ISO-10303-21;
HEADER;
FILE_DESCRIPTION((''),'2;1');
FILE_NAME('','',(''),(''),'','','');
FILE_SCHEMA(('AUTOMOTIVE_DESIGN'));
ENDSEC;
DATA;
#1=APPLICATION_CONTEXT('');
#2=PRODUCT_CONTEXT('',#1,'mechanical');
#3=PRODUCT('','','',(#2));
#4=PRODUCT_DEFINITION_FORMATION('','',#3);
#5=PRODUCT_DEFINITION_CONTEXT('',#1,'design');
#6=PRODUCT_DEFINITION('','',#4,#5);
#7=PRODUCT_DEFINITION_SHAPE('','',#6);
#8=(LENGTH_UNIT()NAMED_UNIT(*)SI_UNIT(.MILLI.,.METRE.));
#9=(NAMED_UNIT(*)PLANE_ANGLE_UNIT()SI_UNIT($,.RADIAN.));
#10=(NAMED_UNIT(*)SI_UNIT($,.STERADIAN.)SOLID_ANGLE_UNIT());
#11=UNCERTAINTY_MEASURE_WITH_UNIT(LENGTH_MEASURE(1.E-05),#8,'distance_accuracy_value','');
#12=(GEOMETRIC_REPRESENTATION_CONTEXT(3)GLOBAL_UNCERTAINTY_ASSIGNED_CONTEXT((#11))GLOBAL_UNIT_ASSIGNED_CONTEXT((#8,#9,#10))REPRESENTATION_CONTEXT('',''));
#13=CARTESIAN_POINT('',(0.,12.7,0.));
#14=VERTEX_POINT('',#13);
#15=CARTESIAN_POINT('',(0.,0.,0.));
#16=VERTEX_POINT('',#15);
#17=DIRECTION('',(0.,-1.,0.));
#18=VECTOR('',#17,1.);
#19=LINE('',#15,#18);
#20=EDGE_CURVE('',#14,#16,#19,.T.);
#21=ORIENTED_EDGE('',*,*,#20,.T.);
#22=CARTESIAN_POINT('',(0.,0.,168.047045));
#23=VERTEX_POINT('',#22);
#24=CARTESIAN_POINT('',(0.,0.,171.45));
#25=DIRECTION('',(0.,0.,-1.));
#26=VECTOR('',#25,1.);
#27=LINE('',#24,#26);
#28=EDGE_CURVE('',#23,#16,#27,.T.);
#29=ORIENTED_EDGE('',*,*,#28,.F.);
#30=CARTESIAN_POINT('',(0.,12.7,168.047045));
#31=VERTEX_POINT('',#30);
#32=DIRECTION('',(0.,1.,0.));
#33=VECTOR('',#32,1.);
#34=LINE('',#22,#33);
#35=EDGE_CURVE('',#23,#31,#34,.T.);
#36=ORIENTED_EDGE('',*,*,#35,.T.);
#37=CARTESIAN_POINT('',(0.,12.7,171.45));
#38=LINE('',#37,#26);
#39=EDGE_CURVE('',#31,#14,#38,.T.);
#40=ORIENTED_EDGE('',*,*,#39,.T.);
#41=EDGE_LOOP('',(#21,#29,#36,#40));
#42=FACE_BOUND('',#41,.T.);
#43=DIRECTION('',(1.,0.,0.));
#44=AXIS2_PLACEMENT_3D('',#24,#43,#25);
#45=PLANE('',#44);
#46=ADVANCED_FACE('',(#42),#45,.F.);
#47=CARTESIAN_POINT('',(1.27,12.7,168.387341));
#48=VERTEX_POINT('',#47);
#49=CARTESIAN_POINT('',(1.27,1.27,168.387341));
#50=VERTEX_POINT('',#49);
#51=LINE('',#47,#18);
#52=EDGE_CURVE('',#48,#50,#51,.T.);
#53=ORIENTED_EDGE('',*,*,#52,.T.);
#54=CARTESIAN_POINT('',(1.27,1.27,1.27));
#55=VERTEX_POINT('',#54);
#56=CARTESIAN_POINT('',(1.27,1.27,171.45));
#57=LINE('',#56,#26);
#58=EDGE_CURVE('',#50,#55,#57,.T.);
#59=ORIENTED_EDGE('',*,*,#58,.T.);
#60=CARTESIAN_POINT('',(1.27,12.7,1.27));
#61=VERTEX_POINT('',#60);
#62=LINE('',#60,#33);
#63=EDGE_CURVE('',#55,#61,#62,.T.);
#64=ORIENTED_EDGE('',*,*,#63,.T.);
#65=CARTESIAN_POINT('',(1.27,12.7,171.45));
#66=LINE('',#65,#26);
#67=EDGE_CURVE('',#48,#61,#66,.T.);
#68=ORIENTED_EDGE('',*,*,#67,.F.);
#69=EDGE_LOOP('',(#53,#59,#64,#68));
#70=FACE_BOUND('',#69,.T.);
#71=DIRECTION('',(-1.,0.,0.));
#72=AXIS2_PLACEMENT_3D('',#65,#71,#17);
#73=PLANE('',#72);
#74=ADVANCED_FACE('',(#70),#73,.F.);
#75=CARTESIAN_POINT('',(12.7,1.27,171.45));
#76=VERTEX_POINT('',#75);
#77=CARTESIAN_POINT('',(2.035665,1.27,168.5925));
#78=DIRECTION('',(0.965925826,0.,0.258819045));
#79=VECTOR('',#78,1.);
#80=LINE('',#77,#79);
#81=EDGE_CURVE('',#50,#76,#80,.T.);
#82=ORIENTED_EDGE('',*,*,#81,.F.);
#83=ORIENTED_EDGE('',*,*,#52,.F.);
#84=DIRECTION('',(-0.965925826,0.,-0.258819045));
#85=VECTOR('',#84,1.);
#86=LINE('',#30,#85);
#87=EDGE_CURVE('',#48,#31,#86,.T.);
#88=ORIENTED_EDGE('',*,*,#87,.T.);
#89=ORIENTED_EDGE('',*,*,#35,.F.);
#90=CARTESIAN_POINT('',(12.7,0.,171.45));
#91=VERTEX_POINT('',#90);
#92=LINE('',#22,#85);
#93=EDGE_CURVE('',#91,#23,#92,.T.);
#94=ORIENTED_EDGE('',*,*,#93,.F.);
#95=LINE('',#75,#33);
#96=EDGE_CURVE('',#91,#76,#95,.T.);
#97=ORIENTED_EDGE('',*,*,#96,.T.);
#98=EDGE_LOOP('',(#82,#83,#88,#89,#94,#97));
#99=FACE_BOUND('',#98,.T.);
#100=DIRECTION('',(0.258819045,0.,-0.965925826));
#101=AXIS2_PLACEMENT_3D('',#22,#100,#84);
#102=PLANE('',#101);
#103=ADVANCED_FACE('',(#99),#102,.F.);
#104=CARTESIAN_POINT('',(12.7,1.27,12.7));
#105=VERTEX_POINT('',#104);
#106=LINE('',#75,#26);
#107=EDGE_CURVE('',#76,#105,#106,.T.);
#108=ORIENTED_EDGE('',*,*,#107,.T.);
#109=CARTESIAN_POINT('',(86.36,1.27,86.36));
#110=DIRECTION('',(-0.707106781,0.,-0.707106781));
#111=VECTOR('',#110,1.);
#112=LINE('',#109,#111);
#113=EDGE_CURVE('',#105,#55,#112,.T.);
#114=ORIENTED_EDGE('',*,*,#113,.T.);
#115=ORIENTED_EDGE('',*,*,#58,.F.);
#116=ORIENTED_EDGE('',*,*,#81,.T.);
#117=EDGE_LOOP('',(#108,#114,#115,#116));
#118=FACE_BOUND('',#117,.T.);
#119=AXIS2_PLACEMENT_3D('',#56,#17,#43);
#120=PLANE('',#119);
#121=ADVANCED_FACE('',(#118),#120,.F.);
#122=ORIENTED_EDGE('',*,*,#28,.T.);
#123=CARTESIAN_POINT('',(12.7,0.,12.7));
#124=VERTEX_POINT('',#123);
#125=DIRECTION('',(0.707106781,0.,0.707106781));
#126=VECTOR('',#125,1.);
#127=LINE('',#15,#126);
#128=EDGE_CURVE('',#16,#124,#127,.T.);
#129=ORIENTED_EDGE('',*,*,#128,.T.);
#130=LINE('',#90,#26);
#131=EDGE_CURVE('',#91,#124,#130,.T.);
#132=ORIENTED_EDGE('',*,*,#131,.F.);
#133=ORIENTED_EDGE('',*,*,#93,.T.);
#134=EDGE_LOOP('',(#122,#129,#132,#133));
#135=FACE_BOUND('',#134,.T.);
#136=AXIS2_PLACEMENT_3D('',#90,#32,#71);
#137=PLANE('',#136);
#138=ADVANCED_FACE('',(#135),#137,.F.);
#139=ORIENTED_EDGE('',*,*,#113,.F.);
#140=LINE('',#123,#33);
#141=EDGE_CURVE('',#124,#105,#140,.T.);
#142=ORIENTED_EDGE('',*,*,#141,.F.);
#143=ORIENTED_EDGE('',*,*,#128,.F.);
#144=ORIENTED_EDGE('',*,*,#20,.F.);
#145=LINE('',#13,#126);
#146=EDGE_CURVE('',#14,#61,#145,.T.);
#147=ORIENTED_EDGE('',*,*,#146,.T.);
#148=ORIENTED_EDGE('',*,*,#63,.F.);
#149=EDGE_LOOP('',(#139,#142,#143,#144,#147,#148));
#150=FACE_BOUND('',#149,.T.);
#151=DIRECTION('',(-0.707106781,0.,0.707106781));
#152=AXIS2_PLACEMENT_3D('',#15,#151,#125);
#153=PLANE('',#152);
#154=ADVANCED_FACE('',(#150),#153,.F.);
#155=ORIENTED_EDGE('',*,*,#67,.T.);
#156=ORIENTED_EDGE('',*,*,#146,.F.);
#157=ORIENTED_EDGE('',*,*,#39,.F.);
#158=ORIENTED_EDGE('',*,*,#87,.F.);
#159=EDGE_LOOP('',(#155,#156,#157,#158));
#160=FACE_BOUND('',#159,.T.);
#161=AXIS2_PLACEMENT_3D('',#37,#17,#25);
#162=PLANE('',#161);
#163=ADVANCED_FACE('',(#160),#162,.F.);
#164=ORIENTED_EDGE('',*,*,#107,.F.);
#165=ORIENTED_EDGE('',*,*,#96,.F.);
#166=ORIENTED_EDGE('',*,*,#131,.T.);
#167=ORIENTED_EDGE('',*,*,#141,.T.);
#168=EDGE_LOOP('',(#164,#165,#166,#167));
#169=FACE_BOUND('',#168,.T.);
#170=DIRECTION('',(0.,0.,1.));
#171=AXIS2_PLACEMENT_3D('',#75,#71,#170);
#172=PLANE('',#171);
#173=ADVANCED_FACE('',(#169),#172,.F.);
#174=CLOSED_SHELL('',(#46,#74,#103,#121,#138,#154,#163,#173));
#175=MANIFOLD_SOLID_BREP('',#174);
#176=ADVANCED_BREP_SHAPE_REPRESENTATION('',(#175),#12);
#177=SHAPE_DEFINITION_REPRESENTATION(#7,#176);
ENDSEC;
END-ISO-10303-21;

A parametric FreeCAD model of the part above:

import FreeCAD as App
import Part
import Sketcher
Q = App.Units.Quantity

doc = App.newDocument("Part")
body = doc.addObject("PartDesign::Body", "Body")

# Sketch on XY plane
sketch1 = doc.addObject("Sketcher::SketchObject", "Sketch")
body.addObject(sketch1)
sketch1.AttachmentSupport = (doc.XY_Plane, [""])
sketch1.MapMode = "FlatFace"
sketch1.addGeometry(Part.LineSegment(App.Vector(0, 12.7, 0), App.Vector(0, 0, 0)), False)
sketch1.addGeometry(Part.LineSegment(App.Vector(0, 0, 0), App.Vector(12.7, 0, 0)), False)
sketch1.addGeometry(Part.LineSegment(App.Vector(12.7, 0, 0), App.Vector(12.7, 1.27, 0)), False)
sketch1.addGeometry(Part.LineSegment(App.Vector(12.7, 1.27, 0), App.Vector(1.27, 1.27, 0)), False)
sketch1.addGeometry(Part.LineSegment(App.Vector(1.27, 1.27, 0), App.Vector(1.27, 12.7, 0)), False)
sketch1.addGeometry(Part.LineSegment(App.Vector(1.27, 12.7, 0), App.Vector(0, 12.7, 0)), False)
sketch1.addConstraint(Sketcher.Constraint("Coincident", 0, 2, 1, 1))
sketch1.addConstraint(Sketcher.Constraint("Coincident", 1, 2, 2, 1))
sketch1.addConstraint(Sketcher.Constraint("Coincident", 2, 2, 3, 1))
sketch1.addConstraint(Sketcher.Constraint("Coincident", 3, 2, 4, 1))
sketch1.addConstraint(Sketcher.Constraint("Coincident", 4, 2, 5, 1))
sketch1.addConstraint(Sketcher.Constraint("Coincident", 5, 2, 0, 1))
sketch1.addConstraint(Sketcher.Constraint("Vertical", 0))
sketch1.addConstraint(Sketcher.Constraint("Horizontal", 1))
sketch1.addConstraint(Sketcher.Constraint("Vertical", 2))
sketch1.addConstraint(Sketcher.Constraint("Horizontal", 3))
sketch1.addConstraint(Sketcher.Constraint("Vertical", 4))
sketch1.addConstraint(Sketcher.Constraint("Horizontal", 5))
sketch1.addConstraint(Sketcher.Constraint("Coincident", 0, 2, -1, 1))
sketch1.addConstraint(Sketcher.Constraint("Equal", 1, 0))
sketch1.addConstraint(Sketcher.Constraint("Equal", 5, 2))
sketch1.addConstraint(Sketcher.Constraint("DistanceX", 1, 1, 1, 2, Q("0.5 in")))
sketch1.addConstraint(Sketcher.Constraint("DistanceX", 3, 2, 3, 1, Q("0.45 in")))
pad1 = doc.addObject("PartDesign::Pad", "Pad")
body.addObject(pad1)
pad1.Profile = sketch1
pad1.Length = Q("6.75 in")

# Sketch on XZ plane
sketch2 = doc.addObject("Sketcher::SketchObject", "Sketch001")
body.addObject(sketch2)
sketch2.AttachmentSupport = (doc.XZ_Plane, [""])
sketch2.MapMode = "FlatFace"
sketch2.AttachmentOffset = App.Placement(App.Vector(0, 0, -0.05 * 25.4), App.Rotation())
sketch2.addGeometry(Part.LineSegment(App.Vector(12.7, 171.45, 0), App.Vector(0, 168.047045, 0)), False)
sketch2.addGeometry(Part.LineSegment(App.Vector(0, 168.047045, 0), App.Vector(0, 171.45, 0)), False)
sketch2.addGeometry(Part.LineSegment(App.Vector(0, 171.45, 0), App.Vector(12.7, 171.45, 0)), False)
sketch2.addGeometry(Part.LineSegment(App.Vector(0, 0, 0), App.Vector(12.7, 12.7, 0)), False)
sketch2.addGeometry(Part.LineSegment(App.Vector(12.7, 12.7, 0), App.Vector(12.7, 0, 0)), False)
sketch2.addGeometry(Part.LineSegment(App.Vector(12.7, 0, 0), App.Vector(0, 0, 0)), False)
sketch2.addConstraint(Sketcher.Constraint("Coincident", 0, 2, 1, 1))
sketch2.addConstraint(Sketcher.Constraint("Coincident", 1, 2, 2, 1))
sketch2.addConstraint(Sketcher.Constraint("Coincident", 2, 2, 0, 1))
sketch2.addConstraint(Sketcher.Constraint("Coincident", 3, 2, 4, 1))
sketch2.addConstraint(Sketcher.Constraint("Coincident", 4, 2, 5, 1))
sketch2.addConstraint(Sketcher.Constraint("Coincident", 5, 2, 3, 1))
sketch2.addConstraint(Sketcher.Constraint("Vertical", 1))
sketch2.addConstraint(Sketcher.Constraint("Horizontal", 2))
sketch2.addConstraint(Sketcher.Constraint("Vertical", 4))
sketch2.addConstraint(Sketcher.Constraint("Horizontal", 5))
sketch2.addConstraint(Sketcher.Constraint("Coincident", 5, 2, -1, 1))
sketch2.addConstraint(Sketcher.Constraint("PointOnObject", 0, 2, -2))
sketch2.addConstraint(Sketcher.Constraint("Vertical", 2, 2, 3, 2))
sketch2.addConstraint(Sketcher.Constraint("Equal", 5, 4))
sketch2.addConstraint(Sketcher.Constraint("DistanceX", 2, 1, 2, 2, Q("0.5 in")))
sketch2.addConstraint(Sketcher.Constraint("Angle", 0, Q("-165 deg")))
sketch2.addConstraint(Sketcher.Constraint("DistanceY", -1, 1, 1, 2, Q("6.75 in")))
pocket1 = doc.addObject("PartDesign::Pocket", "Pocket")
body.addObject(pocket1)
pocket1.Profile = sketch2
pocket1.Type = "ThroughAll"
pocket1.Midplane = True

doc.recompute()
